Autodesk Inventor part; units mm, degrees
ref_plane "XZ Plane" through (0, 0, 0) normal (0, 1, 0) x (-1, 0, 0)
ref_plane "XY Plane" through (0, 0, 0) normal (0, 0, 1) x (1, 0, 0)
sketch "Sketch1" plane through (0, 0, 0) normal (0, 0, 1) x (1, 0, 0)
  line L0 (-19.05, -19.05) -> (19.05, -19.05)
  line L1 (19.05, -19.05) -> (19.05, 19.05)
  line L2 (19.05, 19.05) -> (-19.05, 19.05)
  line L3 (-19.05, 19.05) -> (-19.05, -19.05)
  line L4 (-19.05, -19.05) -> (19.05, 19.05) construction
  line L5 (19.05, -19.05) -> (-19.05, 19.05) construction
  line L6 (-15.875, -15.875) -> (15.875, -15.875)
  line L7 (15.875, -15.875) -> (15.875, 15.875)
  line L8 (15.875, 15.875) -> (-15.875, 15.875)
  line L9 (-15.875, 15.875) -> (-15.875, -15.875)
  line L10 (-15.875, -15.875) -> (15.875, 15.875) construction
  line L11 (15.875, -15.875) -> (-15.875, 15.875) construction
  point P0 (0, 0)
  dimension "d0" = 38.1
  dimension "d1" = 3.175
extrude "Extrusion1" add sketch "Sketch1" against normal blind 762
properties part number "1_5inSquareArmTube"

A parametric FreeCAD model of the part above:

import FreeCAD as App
import Part
import Sketcher
from FreeCAD import Vector
Q = App.Units.Quantity


def add_polygon(sketch, points):
    """Adds a closed chain of lines whose ends are joined by coincident constraints."""
    first, n = sketch.GeometryCount, len(points)
    for a, b in zip(points, points[1:] + points[:1]):
        sketch.addGeometry(Part.LineSegment(App.Vector(*a, 0), App.Vector(*b, 0)), False)
    for i in range(n):
        sketch.addConstraint(Sketcher.Constraint("Coincident", first + i, 2, first + (i + 1) % n, 1))

doc = App.newDocument("Part")
body = doc.addObject("PartDesign::Body", "Body")

# Sketch on XY plane
sketch1 = body.newObject("Sketcher::SketchObject", "Sketch")
sketch1.AttachmentSupport = (doc.getObject("XY_Plane"), [""])
sketch1.MapMode = "FlatFace"
add_polygon(sketch1, [(-19, 19), (-19, -19), (19, -19), (19, 19)])  # lines 0-3
add_polygon(sketch1, [(16, -16), (-16, -16), (-16, 16), (16, 16)])  # lines 4-7
sketch1.addConstraint([
    Sketcher.Constraint("Vertical", 0),
    Sketcher.Constraint("Horizontal", 1),
    Sketcher.Constraint("Vertical", 2),
    Sketcher.Constraint("Horizontal", 3),
    Sketcher.Constraint("Horizontal", 4),
    Sketcher.Constraint("Vertical", 5),
    Sketcher.Constraint("Horizontal", 6),
    Sketcher.Constraint("Vertical", 7),
    Sketcher.Constraint("Symmetric", 0, 2, 2, 2, -1, 1),
    Sketcher.Constraint("Symmetric", 4, 2, 6, 2, -1, 1),
    Sketcher.Constraint("Equal", 3, 0),
    Sketcher.Constraint("Equal", 6, 5),
    Sketcher.Constraint("DistanceX", 1, 1, 1, 2, Q("1.5 in")),
    Sketcher.Constraint("DistanceX", 0, 2, 4, 2, Q("0.125 in")),
])
pad1 = body.newObject("PartDesign::Pad", "Pad")
pad1.Profile = sketch1
pad1.Length = Q("30 in")
pad1.Reversed = True

doc.recompute()
